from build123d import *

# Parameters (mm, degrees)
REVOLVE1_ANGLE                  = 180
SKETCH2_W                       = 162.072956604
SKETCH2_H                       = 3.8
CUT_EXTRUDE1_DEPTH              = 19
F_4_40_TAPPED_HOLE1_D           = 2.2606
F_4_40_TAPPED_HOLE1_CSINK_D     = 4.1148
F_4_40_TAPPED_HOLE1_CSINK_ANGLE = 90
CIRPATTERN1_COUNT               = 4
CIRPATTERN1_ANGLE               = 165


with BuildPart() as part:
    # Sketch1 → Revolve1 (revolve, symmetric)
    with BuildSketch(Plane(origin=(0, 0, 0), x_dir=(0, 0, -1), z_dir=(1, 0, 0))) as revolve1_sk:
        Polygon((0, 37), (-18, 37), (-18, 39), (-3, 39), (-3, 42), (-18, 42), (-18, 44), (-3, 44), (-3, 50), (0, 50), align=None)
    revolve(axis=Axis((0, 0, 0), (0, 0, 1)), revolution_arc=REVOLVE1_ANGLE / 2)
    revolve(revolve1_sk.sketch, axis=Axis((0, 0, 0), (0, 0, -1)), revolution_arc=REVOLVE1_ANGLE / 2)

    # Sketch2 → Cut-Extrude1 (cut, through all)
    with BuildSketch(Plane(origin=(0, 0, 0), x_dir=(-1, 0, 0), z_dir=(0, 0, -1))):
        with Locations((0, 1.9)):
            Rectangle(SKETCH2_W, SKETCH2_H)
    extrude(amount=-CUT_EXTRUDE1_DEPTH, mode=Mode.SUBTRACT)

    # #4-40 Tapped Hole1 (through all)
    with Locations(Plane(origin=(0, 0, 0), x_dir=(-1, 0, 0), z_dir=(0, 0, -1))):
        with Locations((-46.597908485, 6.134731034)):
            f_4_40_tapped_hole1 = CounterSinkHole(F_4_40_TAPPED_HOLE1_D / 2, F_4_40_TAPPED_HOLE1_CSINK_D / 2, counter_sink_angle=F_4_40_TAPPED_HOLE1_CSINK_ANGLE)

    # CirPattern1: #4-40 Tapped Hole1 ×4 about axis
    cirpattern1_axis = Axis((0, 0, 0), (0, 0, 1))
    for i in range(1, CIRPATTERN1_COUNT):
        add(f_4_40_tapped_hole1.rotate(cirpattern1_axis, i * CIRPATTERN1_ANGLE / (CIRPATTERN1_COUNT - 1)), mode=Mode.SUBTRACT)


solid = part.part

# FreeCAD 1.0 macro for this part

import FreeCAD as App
import Part
import Sketcher
from FreeCAD import Vector
Q = App.Units.Quantity


def add_polygon(sketch, points):
    """Adds a closed chain of lines whose ends are joined by coincident constraints."""
    first, n = sketch.GeometryCount, len(points)
    for a, b in zip(points, points[1:] + points[:1]):
        sketch.addGeometry(Part.LineSegment(App.Vector(*a, 0), App.Vector(*b, 0)), False)
    for i in range(n):
        sketch.addConstraint(Sketcher.Constraint("Coincident", first + i, 2, first + (i + 1) % n, 1))

doc = App.newDocument("Part")
body = doc.addObject("PartDesign::Body", "Body")

sketch1 = doc.addObject("Sketcher::SketchObject", "Sketch")
body.addObject(sketch1)
sketch1.AttachmentSupport = (doc.YZ_Plane, [""])
sketch1.MapMode = "FlatFace"
add_polygon(sketch1, [(37, 18), (37, 0), (50, 0), (50, 3), (44, 3), (44, 18), (42, 18), (42, 3), (39, 3), (39, 18)])
sketch1.addConstraint([
    Sketcher.Constraint("Vertical", 0),
    Sketcher.Constraint("Horizontal", 1),
    Sketcher.Constraint("Vertical", 2),
    Sketcher.Constraint("Horizontal", 3),
    Sketcher.Constraint("Vertical", 4),
    Sketcher.Constraint("Horizontal", 5),
    Sketcher.Constraint("Vertical", 6),
    Sketcher.Constraint("Horizontal", 7),
    Sketcher.Constraint("Vertical", 8),
    Sketcher.Constraint("Horizontal", 9),
    Sketcher.Constraint("PointOnObject", 0, 2, -1),
    Sketcher.Constraint("Horizontal", 3, 2, 6, 2),
    Sketcher.Constraint("Horizontal", 5, 2, 8, 2),
    Sketcher.Constraint("Equal", 5, 9),
    Sketcher.Constraint("Equal", 7, 2),
    Sketcher.Constraint("DistanceX", 1, 1, 1, 2, Q("13 mm")),
    Sketcher.Constraint("DistanceX", 3, 2, 3, 1, Q("6 mm")),
    Sketcher.Constraint("DistanceX", 5, 2, 5, 1, Q("2 mm")),
    Sketcher.Constraint("DistanceY", 0, 2, 0, 1, Q("18 mm")),
    Sketcher.Constraint("DistanceX", -1, 1, 0, 2, Q("37 mm")),
])
revolution = doc.addObject("PartDesign::Revolution", "Revolution")
body.addObject(revolution)
revolution.Profile = sketch1
revolution.ReferenceAxis = (sketch1, ["V_Axis"])
revolution.Angle = 90

sketch2 = doc.addObject("Sketcher::SketchObject", "Sketch001")
body.addObject(sketch2)
sketch2.AttachmentSupport = (doc.YZ_Plane, [""])
sketch2.MapMode = "FlatFace"
add_polygon(sketch2, [(37, 18), (37, 0), (50, 0), (50, 3), (44, 3), (44, 18), (42, 18), (42, 3), (39, 3), (39, 18)])
sketch2.addConstraint([
    Sketcher.Constraint("Vertical", 0),
    Sketcher.Constraint("Horizontal", 1),
    Sketcher.Constraint("Vertical", 2),
    Sketcher.Constraint("Horizontal", 3),
    Sketcher.Constraint("Vertical", 4),
    Sketcher.Constraint("Horizontal", 5),
    Sketcher.Constraint("Vertical", 6),
    Sketcher.Constraint("Horizontal", 7),
    Sketcher.Constraint("Vertical", 8),
    Sketcher.Constraint("Horizontal", 9),
    Sketcher.Constraint("PointOnObject", 0, 2, -1),
    Sketcher.Constraint("Horizontal", 3, 2, 6, 2),
    Sketcher.Constraint("Horizontal", 5, 2, 8, 2),
    Sketcher.Constraint("Equal", 5, 9),
    Sketcher.Constraint("Equal", 7, 2),
    Sketcher.Constraint("DistanceX", 1, 1, 1, 2, Q("13 mm")),
    Sketcher.Constraint("DistanceX", 3, 2, 3, 1, Q("6 mm")),
    Sketcher.Constraint("DistanceX", 5, 2, 5, 1, Q("2 mm")),
    Sketcher.Constraint("DistanceY", 0, 2, 0, 1, Q("18 mm")),
    Sketcher.Constraint("DistanceX", -1, 1, 0, 2, Q("37 mm")),
])
revolution2 = doc.addObject("PartDesign::Revolution", "Revolution001")
body.addObject(revolution2)
revolution2.Profile = sketch2
revolution2.ReferenceAxis = (sketch2, ["V_Axis"])
revolution2.Angle = 90
revolution2.Reversed = True

sketch3 = doc.addObject("Sketcher::SketchObject", "Sketch002")
body.addObject(sketch3)
sketch3.AttachmentSupport = (doc.XY_Plane, [""])
sketch3.MapMode = "FlatFace"
add_polygon(sketch3, [(81.036478, 3.8), (81.036478, 0), (-81.036478, 0), (-81.036478, 3.8)])
sketch3.addConstraint([
    Sketcher.Constraint("Vertical", 0),
    Sketcher.Constraint("Horizontal", 1),
    Sketcher.Constraint("Vertical", 2),
    Sketcher.Constraint("Horizontal", 3),
    Sketcher.Constraint("Symmetric", 0, 2, 1, 2, -1, 1),
    Sketcher.Constraint("DistanceY", 0, 2, 0, 1, Q("3.8 mm")),
    Sketcher.Constraint("DistanceX", 1, 2, 1, 1, Q("162.072957 mm")),
])
pocket1 = doc.addObject("PartDesign::Pocket", "Pocket")
body.addObject(pocket1)
pocket1.Profile = sketch3
pocket1.Type = "ThroughAll"
pocket1.Reversed = True

sketch4 = doc.addObject("Sketcher::SketchObject", "Sketch003")
body.addObject(sketch4)
sketch4.AttachmentSupport = (doc.XY_Plane, [""])
sketch4.MapMode = "FlatFace"
sketch4.addGeometry(Part.Circle(Vector(46.597908, 6.134731, 0), Vector(0, 0, 1), 1.1303), False)
sketch4.addConstraint([
    Sketcher.Constraint("Diameter", 0, Q("2.2606 mm")),
    Sketcher.Constraint("DistanceX", -1, 1, 0, 3, Q("46.597908 mm")),
    Sketcher.Constraint("DistanceY", -1, 1, 0, 3, Q("6.134731 mm")),
])
doc.recompute()
hole = doc.addObject("PartDesign::Hole", "Hole")
body.addObject(hole)
hole.Profile = sketch4
hole.ThreadType = "None"
hole.Diameter = 2.2606
hole.DepthType = "ThroughAll"
hole.HoleCutType = "Countersink"
hole.HoleCutDiameter = 4.1148
hole.HoleCutCountersinkAngle = 90
hole.Reversed = True
doc.recompute()

polarpattern = doc.addObject("PartDesign::PolarPattern", "PolarPattern")
body.addObject(polarpattern)
polarpattern.Originals = [hole]
polarpattern.Axis = (doc.Z_Axis, [""])
polarpattern.Angle = 165
polarpattern.Occurrences = 4
body.Tip = polarpattern

doc.recompute()
